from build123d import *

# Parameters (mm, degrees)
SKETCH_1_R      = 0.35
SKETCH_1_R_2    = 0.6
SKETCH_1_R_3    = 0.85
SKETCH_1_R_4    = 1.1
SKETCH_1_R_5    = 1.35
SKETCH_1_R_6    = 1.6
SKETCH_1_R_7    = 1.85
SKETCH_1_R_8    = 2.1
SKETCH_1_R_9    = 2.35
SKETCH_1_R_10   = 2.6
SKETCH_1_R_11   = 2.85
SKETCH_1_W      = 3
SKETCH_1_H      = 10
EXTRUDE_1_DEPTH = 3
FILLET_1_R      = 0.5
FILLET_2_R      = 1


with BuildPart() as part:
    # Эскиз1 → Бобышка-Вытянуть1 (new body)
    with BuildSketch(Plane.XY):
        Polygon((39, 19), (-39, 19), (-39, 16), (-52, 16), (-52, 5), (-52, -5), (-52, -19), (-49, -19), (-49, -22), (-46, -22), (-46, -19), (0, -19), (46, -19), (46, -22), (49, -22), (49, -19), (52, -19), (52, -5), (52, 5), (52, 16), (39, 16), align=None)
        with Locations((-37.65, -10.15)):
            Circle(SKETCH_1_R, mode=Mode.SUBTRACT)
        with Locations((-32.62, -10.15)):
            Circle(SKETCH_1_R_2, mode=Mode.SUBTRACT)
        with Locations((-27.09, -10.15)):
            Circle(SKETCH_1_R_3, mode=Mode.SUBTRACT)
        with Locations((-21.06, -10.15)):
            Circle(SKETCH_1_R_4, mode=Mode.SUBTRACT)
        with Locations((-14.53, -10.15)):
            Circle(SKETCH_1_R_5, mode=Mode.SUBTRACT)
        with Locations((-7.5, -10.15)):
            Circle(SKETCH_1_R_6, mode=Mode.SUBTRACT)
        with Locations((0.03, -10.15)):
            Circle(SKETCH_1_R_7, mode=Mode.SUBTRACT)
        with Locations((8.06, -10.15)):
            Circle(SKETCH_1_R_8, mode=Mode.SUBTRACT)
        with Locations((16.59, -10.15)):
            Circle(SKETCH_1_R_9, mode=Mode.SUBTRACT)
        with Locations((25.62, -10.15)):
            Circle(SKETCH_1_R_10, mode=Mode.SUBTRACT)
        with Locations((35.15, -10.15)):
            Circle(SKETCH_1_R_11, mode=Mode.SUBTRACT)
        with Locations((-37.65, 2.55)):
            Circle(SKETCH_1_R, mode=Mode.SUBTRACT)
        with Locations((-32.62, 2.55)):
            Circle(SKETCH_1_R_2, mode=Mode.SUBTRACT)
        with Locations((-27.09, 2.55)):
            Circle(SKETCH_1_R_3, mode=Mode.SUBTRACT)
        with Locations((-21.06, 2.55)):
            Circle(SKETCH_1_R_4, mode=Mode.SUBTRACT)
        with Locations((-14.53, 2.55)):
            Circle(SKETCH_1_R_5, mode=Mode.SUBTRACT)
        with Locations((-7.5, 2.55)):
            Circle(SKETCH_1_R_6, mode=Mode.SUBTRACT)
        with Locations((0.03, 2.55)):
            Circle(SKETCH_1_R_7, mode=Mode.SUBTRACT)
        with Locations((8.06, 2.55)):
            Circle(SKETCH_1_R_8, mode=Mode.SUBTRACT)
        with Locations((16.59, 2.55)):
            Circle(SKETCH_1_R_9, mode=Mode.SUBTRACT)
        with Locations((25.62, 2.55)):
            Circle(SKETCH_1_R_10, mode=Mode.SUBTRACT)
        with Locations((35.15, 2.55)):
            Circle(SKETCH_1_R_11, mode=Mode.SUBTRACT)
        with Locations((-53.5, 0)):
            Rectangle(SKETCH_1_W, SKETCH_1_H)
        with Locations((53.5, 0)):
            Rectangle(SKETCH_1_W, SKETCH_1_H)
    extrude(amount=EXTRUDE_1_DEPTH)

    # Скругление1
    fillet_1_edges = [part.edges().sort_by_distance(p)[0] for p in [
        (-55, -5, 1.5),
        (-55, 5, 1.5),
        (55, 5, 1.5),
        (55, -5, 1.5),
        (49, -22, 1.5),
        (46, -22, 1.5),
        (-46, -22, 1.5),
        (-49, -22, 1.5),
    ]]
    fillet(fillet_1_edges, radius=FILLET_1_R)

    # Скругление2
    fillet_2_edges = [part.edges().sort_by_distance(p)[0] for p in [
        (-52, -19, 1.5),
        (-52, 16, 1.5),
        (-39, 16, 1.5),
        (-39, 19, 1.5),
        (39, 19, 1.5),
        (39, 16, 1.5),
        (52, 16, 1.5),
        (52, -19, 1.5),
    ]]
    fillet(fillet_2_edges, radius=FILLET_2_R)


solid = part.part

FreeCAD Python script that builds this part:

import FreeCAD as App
import Part
import Sketcher
from FreeCAD import Vector


def edges_at(feature, points):
    """Names of the edges that pass closest to the given points."""
    edges = feature.Shape.Edges
    near = lambda p: min(range(len(edges)), key=lambda i: edges[i].distToShape(Part.Vertex(*p))[0])
    return sorted({f"Edge{near(p) + 1}" for p in points})

doc = App.newDocument("Part")
body = doc.addObject("PartDesign::Body", "Body")

# Sketch on XY plane
sketch1 = body.newObject("Sketcher::SketchObject", "Sketch")
sketch1.AttachmentSupport = (doc.getObject("XY_Plane"), [""])
sketch1.MapMode = "FlatFace"
sketch1.addGeometry([
    Part.LineSegment(Vector(39, 19, 0), Vector(-39, 19, 0)),  # 0
    Part.LineSegment(Vector(-39, 19, 0), Vector(-39, 16, 0)),  # 1
    Part.LineSegment(Vector(-39, 16, 0), Vector(-52, 16, 0)),  # 2
    Part.LineSegment(Vector(-52, 16, 0), Vector(-52, 5, 0)),  # 3
    Part.LineSegment(Vector(-52, 5, 0), Vector(-55, 5, 0)),  # 4
    Part.LineSegment(Vector(-55, 5, 0), Vector(-55, -5, 0)),  # 5
    Part.LineSegment(Vector(-55, -5, 0), Vector(-52, -5, 0)),  # 6
    Part.LineSegment(Vector(-52, -5, 0), Vector(-52, -19, 0)),  # 7
    Part.LineSegment(Vector(-52, -19, 0), Vector(-49, -19, 0)),  # 8
    Part.LineSegment(Vector(-49, -19, 0), Vector(-49, -22, 0)),  # 9
    Part.LineSegment(Vector(-49, -22, 0), Vector(-46, -22, 0)),  # 10
    Part.LineSegment(Vector(-46, -22, 0), Vector(-46, -19, 0)),  # 11
    Part.LineSegment(Vector(-46, -19, 0), Vector(46, -19, 0)),  # 12
    Part.LineSegment(Vector(46, -19, 0), Vector(46, -22, 0)),  # 13
    Part.LineSegment(Vector(46, -22, 0), Vector(49, -22, 0)),  # 14
    Part.LineSegment(Vector(49, -22, 0), Vector(49, -19, 0)),  # 15
    Part.LineSegment(Vector(49, -19, 0), Vector(52, -19, 0)),  # 16
    Part.LineSegment(Vector(52, -19, 0), Vector(52, -5, 0)),  # 17
    Part.LineSegment(Vector(52, -5, 0), Vector(55, -5, 0)),  # 18
    Part.LineSegment(Vector(55, -5, 0), Vector(55, 5, 0)),  # 19
    Part.LineSegment(Vector(55, 5, 0), Vector(52, 5, 0)),  # 20
    Part.LineSegment(Vector(52, 5, 0), Vector(52, 16, 0)),  # 21
    Part.LineSegment(Vector(52, 16, 0), Vector(39, 16, 0)),  # 22
    Part.LineSegment(Vector(39, 16, 0), Vector(39, 19, 0)),  # 23
    Part.Circle(Vector(-37.65, -10.15, 0), Vector(0, 0, 1), 0.35),  # 24
    Part.Circle(Vector(-32.62, -10.15, 0), Vector(0, 0, 1), 0.6),  # 25
    Part.Circle(Vector(-27.09, -10.15, 0), Vector(0, 0, 1), 0.85),  # 26
    Part.Circle(Vector(-21.06, -10.15, 0), Vector(0, 0, 1), 1.1),  # 27
    Part.Circle(Vector(-14.53, -10.15, 0), Vector(0, 0, 1), 1.35),  # 28
    Part.Circle(Vector(-7.5, -10.15, 0), Vector(0, 0, 1), 1.6),  # 29
    Part.Circle(Vector(0.03, -10.15, 0), Vector(0, 0, 1), 1.85),  # 30
    Part.Circle(Vector(8.06, -10.15, 0), Vector(0, 0, 1), 2.1),  # 31
    Part.Circle(Vector(16.59, -10.15, 0), Vector(0, 0, 1), 2.35),  # 32
    Part.Circle(Vector(25.62, -10.15, 0), Vector(0, 0, 1), 2.6),  # 33
    Part.Circle(Vector(35.15, -10.15, 0), Vector(0, 0, 1), 2.85),  # 34
    Part.Circle(Vector(-37.65, 2.55, 0), Vector(0, 0, 1), 0.35),  # 35
    Part.Circle(Vector(-32.62, 2.55, 0), Vector(0, 0, 1), 0.6),  # 36
    Part.Circle(Vector(-27.09, 2.55, 0), Vector(0, 0, 1), 0.85),  # 37
    Part.Circle(Vector(-21.06, 2.55, 0), Vector(0, 0, 1), 1.1),  # 38
    Part.Circle(Vector(-14.53, 2.55, 0), Vector(0, 0, 1), 1.35),  # 39
    Part.Circle(Vector(-7.5, 2.55, 0), Vector(0, 0, 1), 1.6),  # 40
    Part.Circle(Vector(0.03, 2.55, 0), Vector(0, 0, 1), 1.85),  # 41
    Part.Circle(Vector(8.06, 2.55, 0), Vector(0, 0, 1), 2.1),  # 42
    Part.Circle(Vector(16.59, 2.55, 0), Vector(0, 0, 1), 2.35),  # 43
    Part.Circle(Vector(25.62, 2.55, 0), Vector(0, 0, 1), 2.6),  # 44
    Part.Circle(Vector(35.15, 2.55, 0), Vector(0, 0, 1), 2.85),  # 45
], False)
sketch1.addConstraint([
    Sketcher.Constraint("Coincident", 0, 2, 1, 1),
    Sketcher.Constraint("Coincident", 1, 2, 2, 1),
    Sketcher.Constraint("Coincident", 2, 2, 3, 1),
    Sketcher.Constraint("Coincident", 3, 2, 4, 1),
    Sketcher.Constraint("Coincident", 4, 2, 5, 1),
    Sketcher.Constraint("Coincident", 5, 2, 6, 1),
    Sketcher.Constraint("Coincident", 6, 2, 7, 1),
    Sketcher.Constraint("Coincident", 7, 2, 8, 1),
    Sketcher.Constraint("Coincident", 8, 2, 9, 1),
    Sketcher.Constraint("Coincident", 9, 2, 10, 1),
    Sketcher.Constraint("Coincident", 10, 2, 11, 1),
    Sketcher.Constraint("Coincident", 11, 2, 12, 1),
    Sketcher.Constraint("Coincident", 12, 2, 13, 1),
    Sketcher.Constraint("Coincident", 13, 2, 14, 1),
    Sketcher.Constraint("Coincident", 14, 2, 15, 1),
    Sketcher.Constraint("Coincident", 15, 2, 16, 1),
    Sketcher.Constraint("Coincident", 16, 2, 17, 1),
    Sketcher.Constraint("Coincident", 17, 2, 18, 1),
    Sketcher.Constraint("Coincident", 18, 2, 19, 1),
    Sketcher.Constraint("Coincident", 19, 2, 20, 1),
    Sketcher.Constraint("Coincident", 20, 2, 21, 1),
    Sketcher.Constraint("Coincident", 21, 2, 22, 1),
    Sketcher.Constraint("Coincident", 22, 2, 23, 1),
    Sketcher.Constraint("Coincident", 23, 2, 0, 1),
    Sketcher.Constraint("Horizontal", 0),
    Sketcher.Constraint("Vertical", 1),
    Sketcher.Constraint("Horizontal", 2),
    Sketcher.Constraint("Vertical", 3),
    Sketcher.Constraint("Horizontal", 4),
    Sketcher.Constraint("Vertical", 5),
    Sketcher.Constraint("Horizontal", 6),
    Sketcher.Constraint("Vertical", 7),
    Sketcher.Constraint("Horizontal", 8),
    Sketcher.Constraint("Vertical", 9),
    Sketcher.Constraint("Horizontal", 10),
    Sketcher.Constraint("Vertical", 11),
    Sketcher.Constraint("Horizontal", 12),
    Sketcher.Constraint("Vertical", 13),
    Sketcher.Constraint("Horizontal", 14),
    Sketcher.Constraint("Vertical", 15),
    Sketcher.Constraint("Horizontal", 16),
    Sketcher.Constraint("Vertical", 17),
    Sketcher.Constraint("Horizontal", 18),
    Sketcher.Constraint("Vertical", 19),
    Sketcher.Constraint("Horizontal", 20),
    Sketcher.Constraint("Vertical", 21),
    Sketcher.Constraint("Horizontal", 22),
    Sketcher.Constraint("Vertical", 23),
    Sketcher.Constraint("Equal", 24, 35),
    Sketcher.Constraint("Equal", 25, 36),
    Sketcher.Constraint("Equal", 26, 37),
    Sketcher.Constraint("Equal", 27, 38),
    Sketcher.Constraint("Equal", 28, 39),
    Sketcher.Constraint("Equal", 29, 40),
    Sketcher.Constraint("Equal", 30, 41),
    Sketcher.Constraint("Equal", 31, 42),
    Sketcher.Constraint("Equal", 32, 43),
    Sketcher.Constraint("Equal", 33, 44),
    Sketcher.Constraint("Equal", 34, 45),
    Sketcher.Constraint("Symmetric", 3, 2, 17, 2, -1, 1),
    Sketcher.Constraint("Symmetric", 5, 2, 19, 2, -1, 1),
    Sketcher.Constraint("Symmetric", 10, 2, 13, 2, -2),
    Sketcher.Constraint("Symmetric", 8, 2, 15, 2, -2),
    Sketcher.Constraint("Symmetric", 6, 2, 17, 2, -2),
    Sketcher.Constraint("Symmetric", 2, 2, 21, 2, -2),
    Sketcher.Constraint("Horizontal", 24, 3, 25, 3),
    Sketcher.Constraint("Horizontal", 25, 3, 26, 3),
    Sketcher.Constraint("Horizontal", 26, 3, 27, 3),
    Sketcher.Constraint("Horizontal", 27, 3, 28, 3),
    Sketcher.Constraint("Horizontal", 28, 3, 29, 3),
    Sketcher.Constraint("Horizontal", 29, 3, 30, 3),
    Sketcher.Constraint("Horizontal", 30, 3, 31, 3),
    Sketcher.Constraint("Horizontal", 31, 3, 32, 3),
    Sketcher.Constraint("Horizontal", 32, 3, 33, 3),
    Sketcher.Constraint("Horizontal", 33, 3, 34, 3),
    Sketcher.Constraint("Horizontal", 35, 3, 36, 3),
    Sketcher.Constraint("Horizontal", 36, 3, 37, 3),
    Sketcher.Constraint("Horizontal", 37, 3, 38, 3),
    Sketcher.Constraint("Horizontal", 38, 3, 39, 3),
    Sketcher.Constraint("Horizontal", 39, 3, 40, 3),
    Sketcher.Constraint("Horizontal", 40, 3, 41, 3),
    Sketcher.Constraint("Horizontal", 41, 3, 42, 3),
    Sketcher.Constraint("Horizontal", 42, 3, 43, 3),
    Sketcher.Constraint("Horizontal", 43, 3, 44, 3),
    Sketcher.Constraint("Horizontal", 44, 3, 45, 3),
    Sketcher.Constraint("Horizontal", 8, 2, 11, 2),
    Sketcher.Constraint("Vertical", 24, 3, 35, 3),
    Sketcher.Constraint("Vertical", 25, 3, 36, 3),
    Sketcher.Constraint("Vertical", 26, 3, 37, 3),
    Sketcher.Constraint("Vertical", 27, 3, 38, 3),
    Sketcher.Constraint("Vertical", 28, 3, 39, 3),
    Sketcher.Constraint("Vertical", 29, 3, 40, 3),
    Sketcher.Constraint("Vertical", 30, 3, 41, 3),
    Sketcher.Constraint("Vertical", 31, 3, 42, 3),
    Sketcher.Constraint("Vertical", 32, 3, 43, 3),
    Sketcher.Constraint("Vertical", 33, 3, 44, 3),
    Sketcher.Constraint("Vertical", 34, 3, 45, 3),
    Sketcher.Constraint("Equal", 6, 8),
    Sketcher.Constraint("Equal", 8, 10),
    Sketcher.Constraint("Equal", 2, 22),
    Sketcher.Constraint("Equal", 20, 1),
    Sketcher.Constraint("Equal", 1, 9),
    Sketcher.Constraint("Diameter", 24, 0.7),
    Sketcher.Constraint("Diameter", 25, 1.2),
    Sketcher.Constraint("Diameter", 26, 1.7),
    Sketcher.Constraint("Diameter", 27, 2.2),
    Sketcher.Constraint("Diameter", 28, 2.7),
    Sketcher.Constraint("Diameter", 29, 3.2),
    Sketcher.Constraint("Diameter", 30, 3.7),
    Sketcher.Constraint("Diameter", 31, 4.2),
    Sketcher.Constraint("Diameter", 32, 4.7),
    Sketcher.Constraint("Diameter", 33, 5.2),
    Sketcher.Constraint("Diameter", 34, 5.7),
    Sketcher.Constraint("DistanceX", 0, 2, 0, 1, 78.0),
    Sketcher.Constraint("DistanceX", 2, 2, 2, 1, 13.0),
    Sketcher.Constraint("DistanceX", 4, 2, 4, 1, 3.0),
    Sketcher.Constraint("DistanceY", 3, 2, 3, 1, 11.0),
    Sketcher.Constraint("DistanceY", 5, 2, 5, 1, 10.0),
    Sketcher.Constraint("DistanceY", 7, 2, 7, 1, 14.0),
    Sketcher.Constraint("DistanceX", 29, 3, -1, 1, 7.5),
    Sketcher.Constraint("DistanceY", 24, 3, 35, 3, 12.7),
    Sketcher.Constraint("DistanceX", 24, 3, -1, 1, 37.65),
    Sketcher.Constraint("DistanceY", 24, 3, -1, 1, 10.15),
    Sketcher.Constraint("DistanceX", 25, 3, -1, 1, 32.62),
    Sketcher.Constraint("DistanceX", 26, 3, -1, 1, 27.09),
    Sketcher.Constraint("DistanceX", 27, 3, -1, 1, 21.06),
    Sketcher.Constraint("DistanceX", 28, 3, -1, 1, 14.53),
    Sketcher.Constraint("DistanceX", -1, 1, 30, 3, 0.03),
    Sketcher.Constraint("DistanceX", -1, 1, 31, 3, 8.06),
    Sketcher.Constraint("DistanceX", -1, 1, 32, 3, 16.59),
    Sketcher.Constraint("DistanceX", -1, 1, 33, 3, 25.62),
    Sketcher.Constraint("DistanceX", -1, 1, 34, 3, 35.15),
])
pad1 = body.newObject("PartDesign::Pad", "Pad")
pad1.Profile = sketch1
pad1.Length = 3
doc.recompute()

fillet = body.newObject("PartDesign::Fillet", "Fillet")
fillet.Base = (pad1, edges_at(pad1, [
    (-55, -5, 1.5),
    (-55, 5, 1.5),
    (55, 5, 1.5),
    (55, -5, 1.5),
    (49, -22, 1.5),
    (46, -22, 1.5),
    (-46, -22, 1.5),
    (-49, -22, 1.5),
]))
fillet.Radius = 0.5
doc.recompute()

fillet2 = body.newObject("PartDesign::Fillet", "Fillet001")
fillet2.Base = (fillet, edges_at(fillet, [
    (-52, -19, 1.5),
    (-52, 16, 1.5),
    (-39, 16, 1.5),
    (-39, 19, 1.5),
    (39, 19, 1.5),
    (39, 16, 1.5),
    (52, 16, 1.5),
    (52, -19, 1.5),
]))
fillet2.Radius = 1

doc.recompute()
